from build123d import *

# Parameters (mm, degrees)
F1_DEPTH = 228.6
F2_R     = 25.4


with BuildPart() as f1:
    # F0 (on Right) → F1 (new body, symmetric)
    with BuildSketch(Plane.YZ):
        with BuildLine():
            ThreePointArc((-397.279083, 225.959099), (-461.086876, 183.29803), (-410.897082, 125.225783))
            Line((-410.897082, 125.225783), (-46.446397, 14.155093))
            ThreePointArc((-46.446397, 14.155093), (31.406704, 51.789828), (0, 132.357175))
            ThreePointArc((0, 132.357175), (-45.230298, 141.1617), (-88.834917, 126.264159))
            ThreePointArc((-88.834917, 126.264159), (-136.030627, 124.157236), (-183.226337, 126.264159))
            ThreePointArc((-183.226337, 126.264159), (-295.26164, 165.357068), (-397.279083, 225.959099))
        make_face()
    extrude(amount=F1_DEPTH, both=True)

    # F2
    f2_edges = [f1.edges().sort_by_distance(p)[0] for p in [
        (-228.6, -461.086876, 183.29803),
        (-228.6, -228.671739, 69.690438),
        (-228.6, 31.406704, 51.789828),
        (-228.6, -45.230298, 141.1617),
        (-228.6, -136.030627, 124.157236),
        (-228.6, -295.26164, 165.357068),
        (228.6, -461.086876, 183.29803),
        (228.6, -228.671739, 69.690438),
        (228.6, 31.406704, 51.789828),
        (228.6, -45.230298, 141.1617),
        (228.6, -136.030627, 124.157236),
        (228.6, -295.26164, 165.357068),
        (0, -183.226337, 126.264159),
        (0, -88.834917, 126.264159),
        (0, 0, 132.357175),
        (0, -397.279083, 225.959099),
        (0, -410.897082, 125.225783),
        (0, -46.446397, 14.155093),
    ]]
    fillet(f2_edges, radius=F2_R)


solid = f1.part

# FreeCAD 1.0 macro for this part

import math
import FreeCAD as App
import Part
import Sketcher
from FreeCAD import Vector
Q = App.Units.Quantity

doc = App.newDocument("Part")
body = doc.addObject("PartDesign::Body", "Body")

# Sketch on YZ plane
sketch1 = body.newObject("Sketcher::SketchObject", "Sketch")
sketch1.AttachmentSupport = (doc.getObject("YZ_Plane"), [""])
sketch1.MapMode = "FlatFace"
sketch1.addGeometry([
    Part.ArcOfCircle(Part.Circle(Vector(-410, 176, 0), Vector(0, 0, 1), 51), math.radians(75), math.radians(269)),  # 0
    Part.LineSegment(Vector(-411, 125, 0), Vector(-46, 14, 0)),  # 1
    Part.ArcOfCircle(Part.Circle(Vector(-28, 75, 0), Vector(0, 0, 1), 64), math.radians(-107), math.radians(64)),  # 2
    Part.ArcOfCircle(Part.Circle(Vector(-39, 52, 0), Vector(0, 0, 1), 89), math.radians(64), math.radians(124)),  # 3
    Part.ArcOfCircle(Part.Circle(Vector(-136, 654, 0), Vector(0, 0, 1), 530), math.radians(-95.11), math.radians(-84.89)),  # 4
    Part.ArcOfCircle(Part.Circle(Vector(-45, 703, 0), Vector(0, 0, 1), 593), math.radians(-126), math.radians(-103)),  # 5
], False)
sketch1.addConstraint([
    Sketcher.Constraint("Coincident", 0, 2, 1, 1),
    Sketcher.Constraint("Tangent", 1, 2, 2, 1),
    Sketcher.Constraint("Tangent", 2, 2, 3, 1),
    Sketcher.Constraint("Coincident", 3, 2, 4, 2),
    Sketcher.Constraint("Coincident", 4, 1, 5, 2),
    Sketcher.Constraint("Coincident", 5, 1, 0, 1),
    Sketcher.Constraint("PointOnObject", 2, 2, -2),
    Sketcher.Constraint("Horizontal", 3, 2, 4, 1),
    Sketcher.Constraint("Distance", 1, Q("15 in")),
    Sketcher.Constraint("Radius", 0, 51.214177),
    Sketcher.Constraint("Radius", 2, 63.696587),
    Sketcher.Constraint("Radius", 3, 89.372915),
    Sketcher.Constraint("Radius", 4, 529.652523),
    Sketcher.Constraint("Radius", 5, 593.408274),
    Sketcher.Constraint("DistanceY", -1, 1, 5, 1, 225.959099),
    Sketcher.Constraint("DistanceX", 0, 2, 5, 1, 13.617999),
    Sketcher.Constraint("DistanceY", -1, 1, 0, 3, 176.436869),
    Sketcher.Constraint("DistanceY", -1, 1, 2, 3, 75.084922),
    Sketcher.Constraint("DistanceX", 3, 3, -1, 1, 39.11475),
    Sketcher.Constraint("DistanceY", -1, 1, 4, 3, 653.809759),
    Sketcher.Constraint("DistanceY", -1, 1, 5, 3, 703.282571),
])
pad1 = body.newObject("PartDesign::Pad", "Pad")
pad1.Profile = sketch1
pad1.Length = Q("18 in")
pad1.Midplane = True
doc.recompute()

fillet = body.newObject("PartDesign::Fillet", "Fillet")
fillet.Base = (pad1, ["Edge1"])
fillet.UseAllEdges = True
fillet.Radius = Q("1 in")

doc.recompute()
